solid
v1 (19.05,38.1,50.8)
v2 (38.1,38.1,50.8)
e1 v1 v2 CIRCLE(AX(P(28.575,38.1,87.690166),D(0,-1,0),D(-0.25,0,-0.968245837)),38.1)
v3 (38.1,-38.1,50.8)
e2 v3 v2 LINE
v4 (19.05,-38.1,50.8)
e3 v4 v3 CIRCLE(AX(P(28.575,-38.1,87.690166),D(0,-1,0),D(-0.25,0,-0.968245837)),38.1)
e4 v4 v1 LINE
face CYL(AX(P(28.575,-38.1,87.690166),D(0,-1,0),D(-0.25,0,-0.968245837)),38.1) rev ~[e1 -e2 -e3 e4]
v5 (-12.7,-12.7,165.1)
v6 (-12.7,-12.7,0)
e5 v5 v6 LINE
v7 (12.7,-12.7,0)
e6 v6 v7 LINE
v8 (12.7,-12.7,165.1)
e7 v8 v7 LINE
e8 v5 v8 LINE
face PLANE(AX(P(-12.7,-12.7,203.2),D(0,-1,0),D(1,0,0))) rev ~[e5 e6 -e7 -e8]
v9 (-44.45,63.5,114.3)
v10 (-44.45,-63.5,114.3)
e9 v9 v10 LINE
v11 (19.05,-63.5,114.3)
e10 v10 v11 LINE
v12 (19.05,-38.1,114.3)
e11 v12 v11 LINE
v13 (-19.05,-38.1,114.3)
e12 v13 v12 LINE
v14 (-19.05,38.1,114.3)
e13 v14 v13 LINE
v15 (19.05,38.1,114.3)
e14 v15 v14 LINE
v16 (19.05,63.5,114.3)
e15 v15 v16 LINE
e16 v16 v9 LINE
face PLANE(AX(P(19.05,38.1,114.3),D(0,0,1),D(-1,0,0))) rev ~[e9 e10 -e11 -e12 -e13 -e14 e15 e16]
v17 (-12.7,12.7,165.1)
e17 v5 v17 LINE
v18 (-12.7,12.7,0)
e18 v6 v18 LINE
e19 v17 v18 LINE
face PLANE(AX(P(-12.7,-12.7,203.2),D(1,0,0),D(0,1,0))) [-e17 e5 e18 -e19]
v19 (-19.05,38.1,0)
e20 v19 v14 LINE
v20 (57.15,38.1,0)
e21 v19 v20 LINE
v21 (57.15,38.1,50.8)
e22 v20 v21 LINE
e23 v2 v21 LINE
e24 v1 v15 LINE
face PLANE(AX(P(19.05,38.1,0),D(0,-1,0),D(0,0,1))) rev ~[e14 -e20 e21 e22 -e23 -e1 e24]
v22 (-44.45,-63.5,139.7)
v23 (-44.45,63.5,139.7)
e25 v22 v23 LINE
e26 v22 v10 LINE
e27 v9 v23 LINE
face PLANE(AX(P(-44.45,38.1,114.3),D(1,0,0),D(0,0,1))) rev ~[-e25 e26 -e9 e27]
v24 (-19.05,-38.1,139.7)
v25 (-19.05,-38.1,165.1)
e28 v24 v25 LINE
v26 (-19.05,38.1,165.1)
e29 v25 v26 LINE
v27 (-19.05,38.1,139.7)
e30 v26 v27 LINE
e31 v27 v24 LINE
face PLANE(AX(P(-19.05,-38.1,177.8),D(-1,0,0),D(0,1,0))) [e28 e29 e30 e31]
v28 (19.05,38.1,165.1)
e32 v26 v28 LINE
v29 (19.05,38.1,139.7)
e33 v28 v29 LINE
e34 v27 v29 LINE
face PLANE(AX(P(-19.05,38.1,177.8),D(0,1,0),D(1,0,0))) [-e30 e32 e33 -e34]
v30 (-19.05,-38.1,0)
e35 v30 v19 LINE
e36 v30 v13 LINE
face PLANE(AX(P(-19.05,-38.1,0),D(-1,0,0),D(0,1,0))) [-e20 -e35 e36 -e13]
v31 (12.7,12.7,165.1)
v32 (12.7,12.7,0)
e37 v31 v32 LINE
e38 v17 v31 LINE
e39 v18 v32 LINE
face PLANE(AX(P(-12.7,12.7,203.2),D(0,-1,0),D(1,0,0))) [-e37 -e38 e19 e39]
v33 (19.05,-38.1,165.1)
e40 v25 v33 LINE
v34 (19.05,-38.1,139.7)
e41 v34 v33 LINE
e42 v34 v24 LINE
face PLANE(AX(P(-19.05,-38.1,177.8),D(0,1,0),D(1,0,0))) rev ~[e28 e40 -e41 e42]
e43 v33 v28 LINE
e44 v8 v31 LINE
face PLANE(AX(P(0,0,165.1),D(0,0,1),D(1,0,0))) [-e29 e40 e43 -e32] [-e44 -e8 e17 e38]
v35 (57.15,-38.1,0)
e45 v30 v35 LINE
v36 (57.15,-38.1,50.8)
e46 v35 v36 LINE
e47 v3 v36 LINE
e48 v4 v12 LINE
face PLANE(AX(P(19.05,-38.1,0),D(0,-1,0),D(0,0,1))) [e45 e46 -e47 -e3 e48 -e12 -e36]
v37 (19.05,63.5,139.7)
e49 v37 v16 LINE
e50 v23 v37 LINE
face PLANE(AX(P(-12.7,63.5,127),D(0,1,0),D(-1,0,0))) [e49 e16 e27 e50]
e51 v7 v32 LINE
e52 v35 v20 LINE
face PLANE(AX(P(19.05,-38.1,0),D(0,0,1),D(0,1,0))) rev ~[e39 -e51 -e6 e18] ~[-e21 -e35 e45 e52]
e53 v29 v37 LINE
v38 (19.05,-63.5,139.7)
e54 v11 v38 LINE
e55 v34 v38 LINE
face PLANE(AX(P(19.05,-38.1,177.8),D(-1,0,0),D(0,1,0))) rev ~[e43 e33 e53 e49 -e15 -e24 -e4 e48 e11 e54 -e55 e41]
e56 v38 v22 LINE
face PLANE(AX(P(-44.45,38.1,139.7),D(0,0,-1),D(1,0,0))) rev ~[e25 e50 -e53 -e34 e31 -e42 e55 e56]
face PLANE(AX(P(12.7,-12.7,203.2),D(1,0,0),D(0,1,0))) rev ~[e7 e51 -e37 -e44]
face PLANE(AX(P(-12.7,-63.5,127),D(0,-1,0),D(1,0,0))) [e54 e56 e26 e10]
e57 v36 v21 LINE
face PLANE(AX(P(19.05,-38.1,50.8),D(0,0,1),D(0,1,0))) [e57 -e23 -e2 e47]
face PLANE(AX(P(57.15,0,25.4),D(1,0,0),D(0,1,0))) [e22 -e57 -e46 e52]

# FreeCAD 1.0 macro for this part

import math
import FreeCAD as App
import Part
import Sketcher
Q = App.Units.Quantity

doc = App.newDocument("Part")
body = doc.addObject("PartDesign::Body", "Body")

sketch1 = doc.addObject("Sketcher::SketchObject", "Sketch")
body.addObject(sketch1)
sketch1.AttachmentSupport = (doc.XY_Plane, [""])
sketch1.MapMode = "FlatFace"
sketch1.addGeometry(Part.LineSegment(App.Vector(-19, 38, 0), App.Vector(-19, -38, 0)), False)
sketch1.addGeometry(Part.LineSegment(App.Vector(-19, -38, 0), App.Vector(19, -38, 0)), False)
sketch1.addGeometry(Part.LineSegment(App.Vector(19, -38, 0), App.Vector(19, 38, 0)), False)
sketch1.addGeometry(Part.LineSegment(App.Vector(19, 38, 0), App.Vector(-19, 38, 0)), False)
sketch1.addConstraint(Sketcher.Constraint("Coincident", 0, 2, 1, 1))
sketch1.addConstraint(Sketcher.Constraint("Coincident", 1, 2, 2, 1))
sketch1.addConstraint(Sketcher.Constraint("Coincident", 2, 2, 3, 1))
sketch1.addConstraint(Sketcher.Constraint("Coincident", 3, 2, 0, 1))
sketch1.addConstraint(Sketcher.Constraint("Vertical", 0))
sketch1.addConstraint(Sketcher.Constraint("Horizontal", 1))
sketch1.addConstraint(Sketcher.Constraint("Vertical", 2))
sketch1.addConstraint(Sketcher.Constraint("Horizontal", 3))
sketch1.addConstraint(Sketcher.Constraint("Symmetric", 0, 2, 2, 2, -1, 1))
sketch1.addConstraint(Sketcher.Constraint("DistanceY", 0, 2, 0, 1, Q("3 in")))
sketch1.addConstraint(Sketcher.Constraint("DistanceX", 1, 1, 1, 2, Q("1.5 in")))
pad1 = doc.addObject("PartDesign::Pad", "Pad")
body.addObject(pad1)
pad1.Profile = sketch1
pad1.Length = Q("7 in")

sketch2 = doc.addObject("Sketcher::SketchObject", "Sketch001")
body.addObject(sketch2)
sketch2.AttachmentSupport = (doc.YZ_Plane, [""])
sketch2.MapMode = "FlatFace"
sketch2.AttachmentOffset = App.Placement(App.Vector(0, 0, -0.75 * 25.4), App.Rotation())
sketch2.addGeometry(Part.LineSegment(App.Vector(38, 140, 0), App.Vector(38, 114, 0)), False)
sketch2.addGeometry(Part.LineSegment(App.Vector(38, 114, 0), App.Vector(-38, 114, 0)), False)
sketch2.addGeometry(Part.LineSegment(App.Vector(-38, 114, 0), App.Vector(-38, 140, 0)), False)
sketch2.addGeometry(Part.LineSegment(App.Vector(-38, 140, 0), App.Vector(38, 140, 0)), False)
sketch2.addConstraint(Sketcher.Constraint("Coincident", 0, 2, 1, 1))
sketch2.addConstraint(Sketcher.Constraint("Coincident", 1, 2, 2, 1))
sketch2.addConstraint(Sketcher.Constraint("Coincident", 2, 2, 3, 1))
sketch2.addConstraint(Sketcher.Constraint("Coincident", 3, 2, 0, 1))
sketch2.addConstraint(Sketcher.Constraint("Vertical", 0))
sketch2.addConstraint(Sketcher.Constraint("Horizontal", 1))
sketch2.addConstraint(Sketcher.Constraint("Vertical", 2))
sketch2.addConstraint(Sketcher.Constraint("Horizontal", 3))
sketch2.addConstraint(Sketcher.Constraint("DistanceX", 1, 2, 1, 1, Q("3 in")))
sketch2.addConstraint(Sketcher.Constraint("DistanceY", 0, 2, 0, 1, Q("1 in")))
sketch2.addConstraint(Sketcher.Constraint("DistanceX", -1, 1, 0, 2, Q("1.5 in")))
sketch2.addConstraint(Sketcher.Constraint("DistanceY", -1, 1, 0, 2, Q("4.5 in")))
pad2 = doc.addObject("PartDesign::Pad", "Pad001")
body.addObject(pad2)
pad2.Profile = sketch2
pad2.Length = Q("1 in")
pad2.Reversed = True

sketch3 = doc.addObject("Sketcher::SketchObject", "Sketch002")
body.addObject(sketch3)
sketch3.AttachmentSupport = (doc.XZ_Plane, [""])
sketch3.MapMode = "FlatFace"
sketch3.AttachmentOffset = App.Placement(App.Vector(0, 0, 1.5 * 25.4), App.Rotation())
sketch3.addGeometry(Part.LineSegment(App.Vector(-44, 140, 0), App.Vector(-44, 114, 0)), False)
sketch3.addGeometry(Part.LineSegment(App.Vector(-44, 114, 0), App.Vector(19, 114, 0)), False)
sketch3.addGeometry(Part.LineSegment(App.Vector(19, 114, 0), App.Vector(19, 140, 0)), False)
sketch3.addGeometry(Part.LineSegment(App.Vector(19, 140, 0), App.Vector(-44, 140, 0)), False)
sketch3.addConstraint(Sketcher.Constraint("Coincident", 0, 2, 1, 1))
sketch3.addConstraint(Sketcher.Constraint("Coincident", 1, 2, 2, 1))
sketch3.addConstraint(Sketcher.Constraint("Coincident", 2, 2, 3, 1))
sketch3.addConstraint(Sketcher.Constraint("Coincident", 3, 2, 0, 1))
sketch3.addConstraint(Sketcher.Constraint("Vertical", 0))
sketch3.addConstraint(Sketcher.Constraint("Horizontal", 1))
sketch3.addConstraint(Sketcher.Constraint("Vertical", 2))
sketch3.addConstraint(Sketcher.Constraint("Horizontal", 3))
sketch3.addConstraint(Sketcher.Constraint("DistanceY", 0, 2, 0, 1, Q("1 in")))
sketch3.addConstraint(Sketcher.Constraint("DistanceX", 1, 1, 1, 2, Q("2.5 in")))
sketch3.addConstraint(Sketcher.Constraint("DistanceY", -1, 1, 0, 2, Q("4.5 in")))
sketch3.addConstraint(Sketcher.Constraint("DistanceX", 0, 2, -1, 1, Q("1.75 in")))
pad3 = doc.addObject("PartDesign::Pad", "Pad002")
body.addObject(pad3)
pad3.Profile = sketch3
pad3.Length = Q("1 in")

sketch4 = doc.addObject("Sketcher::SketchObject", "Sketch003")
body.addObject(sketch4)
sketch4.AttachmentSupport = (doc.XZ_Plane, [""])
sketch4.MapMode = "FlatFace"
sketch4.AttachmentOffset = App.Placement(App.Vector(0, 0, -1.5 * 25.4), App.Rotation())
sketch4.addGeometry(Part.LineSegment(App.Vector(-44, 114, 0), App.Vector(-44, 140, 0)), False)
sketch4.addGeometry(Part.LineSegment(App.Vector(-44, 140, 0), App.Vector(19, 140, 0)), False)
sketch4.addGeometry(Part.LineSegment(App.Vector(19, 140, 0), App.Vector(19, 114, 0)), False)
sketch4.addGeometry(Part.LineSegment(App.Vector(19, 114, 0), App.Vector(-44, 114, 0)), False)
sketch4.addConstraint(Sketcher.Constraint("Coincident", 0, 2, 1, 1))
sketch4.addConstraint(Sketcher.Constraint("Coincident", 1, 2, 2, 1))
sketch4.addConstraint(Sketcher.Constraint("Coincident", 2, 2, 3, 1))
sketch4.addConstraint(Sketcher.Constraint("Coincident", 3, 2, 0, 1))
sketch4.addConstraint(Sketcher.Constraint("Vertical", 0))
sketch4.addConstraint(Sketcher.Constraint("Horizontal", 1))
sketch4.addConstraint(Sketcher.Constraint("Vertical", 2))
sketch4.addConstraint(Sketcher.Constraint("Horizontal", 3))
sketch4.addConstraint(Sketcher.Constraint("DistanceY", 0, 1, 0, 2, Q("1 in")))
sketch4.addConstraint(Sketcher.Constraint("DistanceX", 1, 1, 1, 2, Q("2.5 in")))
sketch4.addConstraint(Sketcher.Constraint("DistanceY", -1, 1, 0, 2, Q("5.5 in")))
sketch4.addConstraint(Sketcher.Constraint("DistanceX", 0, 2, -1, 1, Q("1.75 in")))
pad4 = doc.addObject("PartDesign::Pad", "Pad003")
body.addObject(pad4)
pad4.Profile = sketch4
pad4.Length = Q("1 in")
pad4.Reversed = True

sketch5 = doc.addObject("Sketcher::SketchObject", "Sketch004")
body.addObject(sketch5)
sketch5.AttachmentSupport = (doc.XY_Plane, [""])
sketch5.MapMode = "FlatFace"
sketch5.AttachmentOffset = App.Placement(App.Vector(0, 0, 7 * 25.4), App.Rotation())
sketch5.addGeometry(Part.LineSegment(App.Vector(-19, 38, 0), App.Vector(-19, -38, 0)), False)
sketch5.addGeometry(Part.LineSegment(App.Vector(-19, -38, 0), App.Vector(19, -38, 0)), False)
sketch5.addGeometry(Part.LineSegment(App.Vector(19, -38, 0), App.Vector(19, 38, 0)), False)
sketch5.addGeometry(Part.LineSegment(App.Vector(19, 38, 0), App.Vector(-19, 38, 0)), False)
sketch5.addConstraint(Sketcher.Constraint("Coincident", 0, 2, 1, 1))
sketch5.addConstraint(Sketcher.Constraint("Coincident", 1, 2, 2, 1))
sketch5.addConstraint(Sketcher.Constraint("Coincident", 2, 2, 3, 1))
sketch5.addConstraint(Sketcher.Constraint("Coincident", 3, 2, 0, 1))
sketch5.addConstraint(Sketcher.Constraint("Vertical", 0))
sketch5.addConstraint(Sketcher.Constraint("Horizontal", 1))
sketch5.addConstraint(Sketcher.Constraint("Vertical", 2))
sketch5.addConstraint(Sketcher.Constraint("Horizontal", 3))
sketch5.addConstraint(Sketcher.Constraint("Symmetric", 0, 2, 2, 2, -1, 1))
sketch5.addConstraint(Sketcher.Constraint("DistanceY", 0, 2, 0, 1, Q("3 in")))
sketch5.addConstraint(Sketcher.Constraint("DistanceX", 1, 1, 1, 2, Q("1.5 in")))
pad5 = doc.addObject("PartDesign::Pad", "Pad004")
body.addObject(pad5)
pad5.Profile = sketch5
pad5.Length = Q("1 in")

sketch6 = doc.addObject("Sketcher::SketchObject", "Sketch005")
body.addObject(sketch6)
sketch6.AttachmentSupport = (doc.XY_Plane, [""])
sketch6.MapMode = "FlatFace"
sketch6.AttachmentOffset = App.Placement(App.Vector(0, 0, 8 * 25.4), App.Rotation())
sketch6.addGeometry(Part.LineSegment(App.Vector(-13, 13, 0), App.Vector(-13, -13, 0)), False)
sketch6.addGeometry(Part.LineSegment(App.Vector(-13, -13, 0), App.Vector(13, -13, 0)), False)
sketch6.addGeometry(Part.LineSegment(App.Vector(13, -13, 0), App.Vector(13, 13, 0)), False)
sketch6.addGeometry(Part.LineSegment(App.Vector(13, 13, 0), App.Vector(-13, 13, 0)), False)
sketch6.addConstraint(Sketcher.Constraint("Coincident", 0, 2, 1, 1))
sketch6.addConstraint(Sketcher.Constraint("Coincident", 1, 2, 2, 1))
sketch6.addConstraint(Sketcher.Constraint("Coincident", 2, 2, 3, 1))
sketch6.addConstraint(Sketcher.Constraint("Coincident", 3, 2, 0, 1))
sketch6.addConstraint(Sketcher.Constraint("Vertical", 0))
sketch6.addConstraint(Sketcher.Constraint("Horizontal", 1))
sketch6.addConstraint(Sketcher.Constraint("Vertical", 2))
sketch6.addConstraint(Sketcher.Constraint("Horizontal", 3))
sketch6.addConstraint(Sketcher.Constraint("Symmetric", 0, 2, 2, 2, -1, 1))
sketch6.addConstraint(Sketcher.Constraint("Equal", 3, 0))
sketch6.addConstraint(Sketcher.Constraint("DistanceX", 1, 1, 1, 2, Q("1 in")))
pocket1 = doc.addObject("PartDesign::Pocket", "Pocket")
body.addObject(pocket1)
pocket1.Profile = sketch6
pocket1.Length = Q("9 in")

sketch7 = doc.addObject("Sketcher::SketchObject", "Sketch006")
body.addObject(sketch7)
sketch7.AttachmentSupport = (doc.YZ_Plane, [""])
sketch7.MapMode = "FlatFace"
sketch7.AttachmentOffset = App.Placement(App.Vector(0, 0, 0.75 * 25.4), App.Rotation())
sketch7.addGeometry(Part.LineSegment(App.Vector(-38, 51, 0), App.Vector(-38, 0, 0)), False)
sketch7.addGeometry(Part.LineSegment(App.Vector(-38, 0, 0), App.Vector(38, 0, 0)), False)
sketch7.addGeometry(Part.LineSegment(App.Vector(38, 0, 0), App.Vector(38, 51, 0)), False)
sketch7.addGeometry(Part.LineSegment(App.Vector(38, 51, 0), App.Vector(-38, 51, 0)), False)
sketch7.addConstraint(Sketcher.Constraint("Coincident", 0, 2, 1, 1))
sketch7.addConstraint(Sketcher.Constraint("Coincident", 1, 2, 2, 1))
sketch7.addConstraint(Sketcher.Constraint("Coincident", 2, 2, 3, 1))
sketch7.addConstraint(Sketcher.Constraint("Coincident", 3, 2, 0, 1))
sketch7.addConstraint(Sketcher.Constraint("Vertical", 0))
sketch7.addConstraint(Sketcher.Constraint("Horizontal", 1))
sketch7.addConstraint(Sketcher.Constraint("Vertical", 2))
sketch7.addConstraint(Sketcher.Constraint("Horizontal", 3))
sketch7.addConstraint(Sketcher.Constraint("Symmetric", 0, 2, 1, 2, -1, 1))
sketch7.addConstraint(Sketcher.Constraint("DistanceX", 1, 1, 1, 2, Q("3 in")))
sketch7.addConstraint(Sketcher.Constraint("DistanceY", 0, 2, 0, 1, Q("2 in")))
pad6 = doc.addObject("PartDesign::Pad", "Pad005")
body.addObject(pad6)
pad6.Profile = sketch7
pad6.Length = Q("1.5 in")

sketch8 = doc.addObject("Sketcher::SketchObject", "Sketch007")
body.addObject(sketch8)
sketch8.AttachmentSupport = (doc.XZ_Plane, [""])
sketch8.MapMode = "FlatFace"
sketch8.AttachmentOffset = App.Placement(App.Vector(0, 0, 1.5 * 25.4), App.Rotation())
sketch8.addGeometry(Part.LineSegment(App.Vector(38, 51, 0), App.Vector(19, 51, 0)), False)
sketch8.addGeometry(Part.ArcOfCircle(Part.Circle(App.Vector(29, 88, 0), App.Vector(0, 0, 1), 38), math.radians(-104), math.radians(-76)), False)
sketch8.addConstraint(Sketcher.Constraint("Coincident", 0, 1, 1, 2))
sketch8.addConstraint(Sketcher.Constraint("Coincident", 1, 1, 0, 2))
sketch8.addConstraint(Sketcher.Constraint("Horizontal", 0))
sketch8.addConstraint(Sketcher.Constraint("Radius", 1, Q("1.5 in")))
sketch8.addConstraint(Sketcher.Constraint("DistanceY", -1, 1, 0, 1, Q("2 in")))
sketch8.addConstraint(Sketcher.Constraint("DistanceX", 0, 2, 0, 1, Q("0.75 in")))
sketch8.addConstraint(Sketcher.Constraint("DistanceX", -1, 1, 0, 1, Q("1.5 in")))
pocket2 = doc.addObject("PartDesign::Pocket", "Pocket001")
body.addObject(pocket2)
pocket2.Profile = sketch8
pocket2.Length = Q("9 in")

sketch9 = doc.addObject("Sketcher::SketchObject", "Sketch008")
body.addObject(sketch9)
sketch9.AttachmentSupport = (doc.XY_Plane, [""])
sketch9.MapMode = "FlatFace"
sketch9.AttachmentOffset = App.Placement(App.Vector(0, 0, 8 * 25.4), App.Rotation())
sketch9.addGeometry(Part.LineSegment(App.Vector(-19, 38, 0), App.Vector(-19, -38, 0)), False)
sketch9.addGeometry(Part.LineSegment(App.Vector(-19, -38, 0), App.Vector(19, -38, 0)), False)
sketch9.addGeometry(Part.LineSegment(App.Vector(19, -38, 0), App.Vector(19, 38, 0)), False)
sketch9.addGeometry(Part.LineSegment(App.Vector(19, 38, 0), App.Vector(-19, 38, 0)), False)
sketch9.addGeometry(Part.LineSegment(App.Vector(13, -13, 0), App.Vector(-13, -13, 0)), False)
sketch9.addGeometry(Part.LineSegment(App.Vector(-13, -13, 0), App.Vector(-13, 13, 0)), False)
sketch9.addGeometry(Part.LineSegment(App.Vector(-13, 13, 0), App.Vector(13, 13, 0)), False)
sketch9.addGeometry(Part.LineSegment(App.Vector(13, 13, 0), App.Vector(13, -13, 0)), False)
sketch9.addConstraint(Sketcher.Constraint("Coincident", 0, 2, 1, 1))
sketch9.addConstraint(Sketcher.Constraint("Coincident", 1, 2, 2, 1))
sketch9.addConstraint(Sketcher.Constraint("Coincident", 2, 2, 3, 1))
sketch9.addConstraint(Sketcher.Constraint("Coincident", 3, 2, 0, 1))
sketch9.addConstraint(Sketcher.Constraint("Coincident", 4, 2, 5, 1))
sketch9.addConstraint(Sketcher.Constraint("Coincident", 5, 2, 6, 1))
sketch9.addConstraint(Sketcher.Constraint("Coincident", 6, 2, 7, 1))
sketch9.addConstraint(Sketcher.Constraint("Coincident", 7, 2, 4, 1))
sketch9.addConstraint(Sketcher.Constraint("Vertical", 0))
sketch9.addConstraint(Sketcher.Constraint("Horizontal", 1))
sketch9.addConstraint(Sketcher.Constraint("Vertical", 2))
sketch9.addConstraint(Sketcher.Constraint("Horizontal", 3))
sketch9.addConstraint(Sketcher.Constraint("Horizontal", 4))
sketch9.addConstraint(Sketcher.Constraint("Vertical", 5))
sketch9.addConstraint(Sketcher.Constraint("Horizontal", 6))
sketch9.addConstraint(Sketcher.Constraint("Vertical", 7))
sketch9.addConstraint(Sketcher.Constraint("Symmetric", 0, 2, 2, 2, -1, 1))
sketch9.addConstraint(Sketcher.Constraint("Symmetric", 4, 2, 6, 2, -1, 1))
sketch9.addConstraint(Sketcher.Constraint("Equal", 6, 5))
sketch9.addConstraint(Sketcher.Constraint("DistanceX", 4, 2, 4, 1, Q("1 in")))
sketch9.addConstraint(Sketcher.Constraint("DistanceY", 0, 2, 0, 1, Q("3 in")))
sketch9.addConstraint(Sketcher.Constraint("DistanceX", 1, 1, 1, 2, Q("1.5 in")))
pocket3 = doc.addObject("PartDesign::Pocket", "Pocket002")
body.addObject(pocket3)
pocket3.Profile = sketch9
pocket3.Length = Q("1.5 in")

doc.recompute()
